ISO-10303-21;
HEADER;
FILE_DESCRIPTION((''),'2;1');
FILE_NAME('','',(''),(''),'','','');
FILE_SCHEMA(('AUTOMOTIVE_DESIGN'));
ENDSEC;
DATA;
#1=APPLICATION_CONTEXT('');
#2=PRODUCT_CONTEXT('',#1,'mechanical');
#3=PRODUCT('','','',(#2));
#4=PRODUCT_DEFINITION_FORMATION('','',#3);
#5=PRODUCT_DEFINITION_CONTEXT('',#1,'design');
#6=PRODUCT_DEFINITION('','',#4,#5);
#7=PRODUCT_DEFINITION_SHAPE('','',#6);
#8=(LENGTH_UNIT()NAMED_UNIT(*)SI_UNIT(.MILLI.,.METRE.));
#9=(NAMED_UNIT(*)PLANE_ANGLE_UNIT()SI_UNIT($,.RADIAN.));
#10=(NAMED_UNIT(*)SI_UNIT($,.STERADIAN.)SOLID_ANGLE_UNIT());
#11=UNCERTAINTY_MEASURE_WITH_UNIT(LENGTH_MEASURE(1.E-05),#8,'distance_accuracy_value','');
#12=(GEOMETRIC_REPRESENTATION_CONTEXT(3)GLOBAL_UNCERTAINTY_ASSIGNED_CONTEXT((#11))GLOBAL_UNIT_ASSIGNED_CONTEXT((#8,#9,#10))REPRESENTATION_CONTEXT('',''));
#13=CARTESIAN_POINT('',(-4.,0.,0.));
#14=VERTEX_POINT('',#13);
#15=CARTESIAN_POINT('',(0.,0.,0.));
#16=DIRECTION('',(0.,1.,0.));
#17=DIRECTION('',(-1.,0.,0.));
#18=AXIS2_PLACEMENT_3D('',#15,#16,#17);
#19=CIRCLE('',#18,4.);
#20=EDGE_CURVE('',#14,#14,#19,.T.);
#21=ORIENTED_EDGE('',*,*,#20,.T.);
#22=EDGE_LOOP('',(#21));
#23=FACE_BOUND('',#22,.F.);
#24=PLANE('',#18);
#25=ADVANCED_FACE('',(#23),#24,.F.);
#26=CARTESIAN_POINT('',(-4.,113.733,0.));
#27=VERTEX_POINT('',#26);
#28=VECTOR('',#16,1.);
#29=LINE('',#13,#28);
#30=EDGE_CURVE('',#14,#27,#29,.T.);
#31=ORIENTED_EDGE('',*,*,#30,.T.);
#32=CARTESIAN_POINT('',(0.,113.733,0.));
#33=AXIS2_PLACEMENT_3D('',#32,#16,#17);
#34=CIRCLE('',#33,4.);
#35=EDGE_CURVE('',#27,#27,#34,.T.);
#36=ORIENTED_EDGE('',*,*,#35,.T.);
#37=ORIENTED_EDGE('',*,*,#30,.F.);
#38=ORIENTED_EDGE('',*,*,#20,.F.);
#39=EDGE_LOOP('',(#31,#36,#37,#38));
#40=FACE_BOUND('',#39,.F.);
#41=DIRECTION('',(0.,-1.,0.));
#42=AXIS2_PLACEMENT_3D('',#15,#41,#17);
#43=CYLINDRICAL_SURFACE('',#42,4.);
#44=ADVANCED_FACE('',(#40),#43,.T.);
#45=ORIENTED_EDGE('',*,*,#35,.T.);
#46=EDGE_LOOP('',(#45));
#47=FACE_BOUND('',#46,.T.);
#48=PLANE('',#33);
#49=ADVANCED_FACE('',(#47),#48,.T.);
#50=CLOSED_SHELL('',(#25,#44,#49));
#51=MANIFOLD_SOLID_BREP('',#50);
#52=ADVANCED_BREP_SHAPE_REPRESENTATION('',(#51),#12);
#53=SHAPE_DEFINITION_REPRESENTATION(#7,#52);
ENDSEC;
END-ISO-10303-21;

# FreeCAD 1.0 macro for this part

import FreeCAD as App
import Part
import Sketcher
Q = App.Units.Quantity

doc = App.newDocument("Part")
params = doc.addObject("Spreadsheet::Sheet", "Params")
for row, (alias, value) in enumerate([
    ("sketch1_diameter", "8 mm"),
    ("pad1_length", "113.733 mm"),
], start=1):
    params.set(f"A{row}", alias)
    params.set(f"B{row}", "=" + value)
    params.setAlias(f"B{row}", alias)

body = doc.addObject("PartDesign::Body", "Body")

# Sketch on XZ plane
sketch1 = body.newObject("Sketcher::SketchObject", "Sketch")
sketch1.AttachmentSupport = (doc.getObject("XZ_Plane"), [""])
sketch1.MapMode = "FlatFace"
sketch1.addGeometry(Part.Circle(App.Vector(0, 0, 0), App.Vector(0, 0, 1), 4), False)
sketch1.addConstraint([
    Sketcher.Constraint("Coincident", 0, 3, -1, 1),
    Sketcher.Constraint("Diameter", 0, Q("8 mm")),
])
sketch1.setExpression("Constraints[1]", "Params.sketch1_diameter")
pad1 = body.newObject("PartDesign::Pad", "Pad")
pad1.Profile = sketch1
pad1.setExpression("Length", "Params.pad1_length")
pad1.Reversed = True

doc.recompute()
